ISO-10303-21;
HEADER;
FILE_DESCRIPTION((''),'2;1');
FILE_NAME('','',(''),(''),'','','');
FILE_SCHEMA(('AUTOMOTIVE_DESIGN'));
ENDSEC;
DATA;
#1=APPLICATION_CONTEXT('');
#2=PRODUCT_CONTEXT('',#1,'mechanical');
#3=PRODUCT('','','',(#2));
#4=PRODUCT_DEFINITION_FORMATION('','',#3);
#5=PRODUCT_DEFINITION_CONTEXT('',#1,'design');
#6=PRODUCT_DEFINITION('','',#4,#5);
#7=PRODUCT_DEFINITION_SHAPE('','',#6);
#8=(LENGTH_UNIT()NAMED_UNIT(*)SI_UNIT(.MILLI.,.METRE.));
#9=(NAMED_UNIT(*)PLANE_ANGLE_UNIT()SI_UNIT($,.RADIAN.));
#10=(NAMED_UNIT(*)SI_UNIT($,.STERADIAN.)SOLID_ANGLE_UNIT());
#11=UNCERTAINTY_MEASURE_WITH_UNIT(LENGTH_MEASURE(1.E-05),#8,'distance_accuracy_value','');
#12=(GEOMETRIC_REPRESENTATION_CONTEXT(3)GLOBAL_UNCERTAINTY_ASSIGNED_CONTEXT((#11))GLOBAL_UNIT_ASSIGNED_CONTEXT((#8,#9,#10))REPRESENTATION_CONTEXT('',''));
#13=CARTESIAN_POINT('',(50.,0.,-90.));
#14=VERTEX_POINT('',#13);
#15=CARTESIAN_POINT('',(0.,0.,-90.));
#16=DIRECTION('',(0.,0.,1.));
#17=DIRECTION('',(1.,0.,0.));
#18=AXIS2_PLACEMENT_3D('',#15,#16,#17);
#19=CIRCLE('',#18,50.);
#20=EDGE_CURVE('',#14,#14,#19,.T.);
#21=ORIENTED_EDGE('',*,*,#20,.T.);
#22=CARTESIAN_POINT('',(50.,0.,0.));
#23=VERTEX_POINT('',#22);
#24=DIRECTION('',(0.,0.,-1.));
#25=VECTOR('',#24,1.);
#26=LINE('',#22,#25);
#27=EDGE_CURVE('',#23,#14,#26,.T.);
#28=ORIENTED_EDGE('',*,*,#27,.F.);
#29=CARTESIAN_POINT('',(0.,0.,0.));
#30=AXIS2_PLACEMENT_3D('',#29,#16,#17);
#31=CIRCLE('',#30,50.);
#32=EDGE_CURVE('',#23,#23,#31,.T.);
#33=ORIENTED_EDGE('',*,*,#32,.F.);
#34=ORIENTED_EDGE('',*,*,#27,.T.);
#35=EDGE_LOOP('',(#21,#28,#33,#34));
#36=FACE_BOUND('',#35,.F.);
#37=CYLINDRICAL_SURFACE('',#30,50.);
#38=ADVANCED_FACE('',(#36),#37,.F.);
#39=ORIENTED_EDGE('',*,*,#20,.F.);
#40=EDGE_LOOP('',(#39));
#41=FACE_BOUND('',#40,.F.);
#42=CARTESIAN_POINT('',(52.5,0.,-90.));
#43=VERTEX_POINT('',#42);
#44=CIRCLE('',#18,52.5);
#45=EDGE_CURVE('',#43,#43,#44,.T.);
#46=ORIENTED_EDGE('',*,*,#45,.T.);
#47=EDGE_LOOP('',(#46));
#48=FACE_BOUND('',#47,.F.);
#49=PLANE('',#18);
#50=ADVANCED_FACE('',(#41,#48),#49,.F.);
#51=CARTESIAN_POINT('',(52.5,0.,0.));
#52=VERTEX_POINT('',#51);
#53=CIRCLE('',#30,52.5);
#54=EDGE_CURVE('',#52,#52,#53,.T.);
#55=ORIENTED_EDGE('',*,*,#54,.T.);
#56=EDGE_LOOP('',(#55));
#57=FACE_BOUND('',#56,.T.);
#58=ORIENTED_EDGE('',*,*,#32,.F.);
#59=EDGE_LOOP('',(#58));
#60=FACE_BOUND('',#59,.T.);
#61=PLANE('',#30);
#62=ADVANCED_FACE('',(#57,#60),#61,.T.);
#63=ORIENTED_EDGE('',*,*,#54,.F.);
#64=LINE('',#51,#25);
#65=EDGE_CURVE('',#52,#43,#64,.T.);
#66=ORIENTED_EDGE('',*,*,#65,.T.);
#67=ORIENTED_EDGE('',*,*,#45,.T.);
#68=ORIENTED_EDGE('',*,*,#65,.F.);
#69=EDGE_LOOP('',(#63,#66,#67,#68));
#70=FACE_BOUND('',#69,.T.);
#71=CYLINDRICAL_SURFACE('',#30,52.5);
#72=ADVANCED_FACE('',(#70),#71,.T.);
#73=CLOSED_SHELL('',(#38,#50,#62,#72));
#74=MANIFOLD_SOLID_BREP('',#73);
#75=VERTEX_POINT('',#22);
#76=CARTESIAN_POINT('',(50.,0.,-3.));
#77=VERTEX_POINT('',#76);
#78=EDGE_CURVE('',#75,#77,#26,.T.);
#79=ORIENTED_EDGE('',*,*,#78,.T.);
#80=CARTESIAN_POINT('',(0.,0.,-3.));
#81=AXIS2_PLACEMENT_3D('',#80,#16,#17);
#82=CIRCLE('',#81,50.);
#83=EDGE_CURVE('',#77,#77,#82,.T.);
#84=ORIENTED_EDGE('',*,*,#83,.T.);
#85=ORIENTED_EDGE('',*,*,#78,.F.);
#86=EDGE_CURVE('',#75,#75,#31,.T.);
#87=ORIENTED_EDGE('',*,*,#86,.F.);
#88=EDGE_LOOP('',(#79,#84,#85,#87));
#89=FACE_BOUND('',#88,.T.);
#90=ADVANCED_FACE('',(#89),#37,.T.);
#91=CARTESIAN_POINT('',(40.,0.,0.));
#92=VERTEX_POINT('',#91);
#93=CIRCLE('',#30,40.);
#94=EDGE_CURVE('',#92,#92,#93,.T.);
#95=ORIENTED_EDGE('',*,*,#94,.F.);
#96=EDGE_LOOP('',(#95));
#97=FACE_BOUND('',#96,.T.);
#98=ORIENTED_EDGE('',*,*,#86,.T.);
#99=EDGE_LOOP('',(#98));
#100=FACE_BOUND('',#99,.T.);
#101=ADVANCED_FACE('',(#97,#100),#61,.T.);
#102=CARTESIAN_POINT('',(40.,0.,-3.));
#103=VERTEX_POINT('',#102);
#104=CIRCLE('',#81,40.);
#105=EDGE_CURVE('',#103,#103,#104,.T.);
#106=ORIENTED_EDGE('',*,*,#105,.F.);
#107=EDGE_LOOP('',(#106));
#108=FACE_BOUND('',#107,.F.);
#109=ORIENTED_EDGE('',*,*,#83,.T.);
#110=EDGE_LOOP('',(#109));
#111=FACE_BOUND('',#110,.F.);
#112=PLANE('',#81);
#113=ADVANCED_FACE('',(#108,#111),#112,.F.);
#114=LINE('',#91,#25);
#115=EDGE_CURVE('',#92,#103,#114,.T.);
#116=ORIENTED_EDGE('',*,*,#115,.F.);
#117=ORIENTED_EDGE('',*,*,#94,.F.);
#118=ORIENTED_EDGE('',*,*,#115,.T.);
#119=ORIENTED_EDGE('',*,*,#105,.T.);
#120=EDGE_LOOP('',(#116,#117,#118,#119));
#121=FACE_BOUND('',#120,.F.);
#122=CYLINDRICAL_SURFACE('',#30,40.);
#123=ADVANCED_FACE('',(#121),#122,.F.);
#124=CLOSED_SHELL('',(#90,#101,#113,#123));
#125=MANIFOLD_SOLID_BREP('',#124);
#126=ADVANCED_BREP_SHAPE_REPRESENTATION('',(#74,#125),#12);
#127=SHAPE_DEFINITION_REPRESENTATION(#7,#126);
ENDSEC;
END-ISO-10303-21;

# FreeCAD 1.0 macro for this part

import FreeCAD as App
import Part
import Sketcher
Q = App.Units.Quantity

doc = App.newDocument("Part")
body = doc.addObject("PartDesign::Body", "Body")

# Sketch on XY plane
sketch1 = body.newObject("Sketcher::SketchObject", "Sketch")
sketch1.AttachmentSupport = (doc.getObject("XY_Plane"), [""])
sketch1.MapMode = "FlatFace"
sketch1.addGeometry(Part.Circle(App.Vector(0, 0, 0), App.Vector(0, 0, 1), 52.5), False)
sketch1.addGeometry(Part.Circle(App.Vector(0, 0, 0), App.Vector(0, 0, 1), 50), False)
sketch1.addConstraint(Sketcher.Constraint("Coincident", 0, 3, -1, 1))
sketch1.addConstraint(Sketcher.Constraint("Coincident", 1, 3, -1, 1))
sketch1.addConstraint(Sketcher.Constraint("Diameter", 0, Q("105 mm")))
sketch1.addConstraint(Sketcher.Constraint("Diameter", 1, Q("100 mm")))
pad1 = body.newObject("PartDesign::Pad", "Pad")
pad1.Profile = sketch1
pad1.Length = 90
pad1.Reversed = True
body2 = doc.addObject("PartDesign::Body", "Body001")

# Sketch on XY plane
sketch2 = body2.newObject("Sketcher::SketchObject", "Sketch001")
sketch2.AttachmentSupport = (doc.getObject("XY_Plane001"), [""])
sketch2.MapMode = "FlatFace"
sketch2.addGeometry(Part.Circle(App.Vector(0, 0, 0), App.Vector(0, 0, 1), 50), False)
sketch2.addGeometry(Part.Circle(App.Vector(0, 0, 0), App.Vector(0, 0, 1), 40), False)
sketch2.addConstraint(Sketcher.Constraint("Coincident", 0, 3, -1, 1))
sketch2.addConstraint(Sketcher.Constraint("Coincident", 1, 3, -1, 1))
sketch2.addConstraint(Sketcher.Constraint("Diameter", 0, Q("100 mm")))
sketch2.addConstraint(Sketcher.Constraint("Diameter", 1, Q("80 mm")))
pad2 = body2.newObject("PartDesign::Pad", "Pad001")
pad2.Profile = sketch2
pad2.Length = 3
pad2.Reversed = True

doc.recompute()
